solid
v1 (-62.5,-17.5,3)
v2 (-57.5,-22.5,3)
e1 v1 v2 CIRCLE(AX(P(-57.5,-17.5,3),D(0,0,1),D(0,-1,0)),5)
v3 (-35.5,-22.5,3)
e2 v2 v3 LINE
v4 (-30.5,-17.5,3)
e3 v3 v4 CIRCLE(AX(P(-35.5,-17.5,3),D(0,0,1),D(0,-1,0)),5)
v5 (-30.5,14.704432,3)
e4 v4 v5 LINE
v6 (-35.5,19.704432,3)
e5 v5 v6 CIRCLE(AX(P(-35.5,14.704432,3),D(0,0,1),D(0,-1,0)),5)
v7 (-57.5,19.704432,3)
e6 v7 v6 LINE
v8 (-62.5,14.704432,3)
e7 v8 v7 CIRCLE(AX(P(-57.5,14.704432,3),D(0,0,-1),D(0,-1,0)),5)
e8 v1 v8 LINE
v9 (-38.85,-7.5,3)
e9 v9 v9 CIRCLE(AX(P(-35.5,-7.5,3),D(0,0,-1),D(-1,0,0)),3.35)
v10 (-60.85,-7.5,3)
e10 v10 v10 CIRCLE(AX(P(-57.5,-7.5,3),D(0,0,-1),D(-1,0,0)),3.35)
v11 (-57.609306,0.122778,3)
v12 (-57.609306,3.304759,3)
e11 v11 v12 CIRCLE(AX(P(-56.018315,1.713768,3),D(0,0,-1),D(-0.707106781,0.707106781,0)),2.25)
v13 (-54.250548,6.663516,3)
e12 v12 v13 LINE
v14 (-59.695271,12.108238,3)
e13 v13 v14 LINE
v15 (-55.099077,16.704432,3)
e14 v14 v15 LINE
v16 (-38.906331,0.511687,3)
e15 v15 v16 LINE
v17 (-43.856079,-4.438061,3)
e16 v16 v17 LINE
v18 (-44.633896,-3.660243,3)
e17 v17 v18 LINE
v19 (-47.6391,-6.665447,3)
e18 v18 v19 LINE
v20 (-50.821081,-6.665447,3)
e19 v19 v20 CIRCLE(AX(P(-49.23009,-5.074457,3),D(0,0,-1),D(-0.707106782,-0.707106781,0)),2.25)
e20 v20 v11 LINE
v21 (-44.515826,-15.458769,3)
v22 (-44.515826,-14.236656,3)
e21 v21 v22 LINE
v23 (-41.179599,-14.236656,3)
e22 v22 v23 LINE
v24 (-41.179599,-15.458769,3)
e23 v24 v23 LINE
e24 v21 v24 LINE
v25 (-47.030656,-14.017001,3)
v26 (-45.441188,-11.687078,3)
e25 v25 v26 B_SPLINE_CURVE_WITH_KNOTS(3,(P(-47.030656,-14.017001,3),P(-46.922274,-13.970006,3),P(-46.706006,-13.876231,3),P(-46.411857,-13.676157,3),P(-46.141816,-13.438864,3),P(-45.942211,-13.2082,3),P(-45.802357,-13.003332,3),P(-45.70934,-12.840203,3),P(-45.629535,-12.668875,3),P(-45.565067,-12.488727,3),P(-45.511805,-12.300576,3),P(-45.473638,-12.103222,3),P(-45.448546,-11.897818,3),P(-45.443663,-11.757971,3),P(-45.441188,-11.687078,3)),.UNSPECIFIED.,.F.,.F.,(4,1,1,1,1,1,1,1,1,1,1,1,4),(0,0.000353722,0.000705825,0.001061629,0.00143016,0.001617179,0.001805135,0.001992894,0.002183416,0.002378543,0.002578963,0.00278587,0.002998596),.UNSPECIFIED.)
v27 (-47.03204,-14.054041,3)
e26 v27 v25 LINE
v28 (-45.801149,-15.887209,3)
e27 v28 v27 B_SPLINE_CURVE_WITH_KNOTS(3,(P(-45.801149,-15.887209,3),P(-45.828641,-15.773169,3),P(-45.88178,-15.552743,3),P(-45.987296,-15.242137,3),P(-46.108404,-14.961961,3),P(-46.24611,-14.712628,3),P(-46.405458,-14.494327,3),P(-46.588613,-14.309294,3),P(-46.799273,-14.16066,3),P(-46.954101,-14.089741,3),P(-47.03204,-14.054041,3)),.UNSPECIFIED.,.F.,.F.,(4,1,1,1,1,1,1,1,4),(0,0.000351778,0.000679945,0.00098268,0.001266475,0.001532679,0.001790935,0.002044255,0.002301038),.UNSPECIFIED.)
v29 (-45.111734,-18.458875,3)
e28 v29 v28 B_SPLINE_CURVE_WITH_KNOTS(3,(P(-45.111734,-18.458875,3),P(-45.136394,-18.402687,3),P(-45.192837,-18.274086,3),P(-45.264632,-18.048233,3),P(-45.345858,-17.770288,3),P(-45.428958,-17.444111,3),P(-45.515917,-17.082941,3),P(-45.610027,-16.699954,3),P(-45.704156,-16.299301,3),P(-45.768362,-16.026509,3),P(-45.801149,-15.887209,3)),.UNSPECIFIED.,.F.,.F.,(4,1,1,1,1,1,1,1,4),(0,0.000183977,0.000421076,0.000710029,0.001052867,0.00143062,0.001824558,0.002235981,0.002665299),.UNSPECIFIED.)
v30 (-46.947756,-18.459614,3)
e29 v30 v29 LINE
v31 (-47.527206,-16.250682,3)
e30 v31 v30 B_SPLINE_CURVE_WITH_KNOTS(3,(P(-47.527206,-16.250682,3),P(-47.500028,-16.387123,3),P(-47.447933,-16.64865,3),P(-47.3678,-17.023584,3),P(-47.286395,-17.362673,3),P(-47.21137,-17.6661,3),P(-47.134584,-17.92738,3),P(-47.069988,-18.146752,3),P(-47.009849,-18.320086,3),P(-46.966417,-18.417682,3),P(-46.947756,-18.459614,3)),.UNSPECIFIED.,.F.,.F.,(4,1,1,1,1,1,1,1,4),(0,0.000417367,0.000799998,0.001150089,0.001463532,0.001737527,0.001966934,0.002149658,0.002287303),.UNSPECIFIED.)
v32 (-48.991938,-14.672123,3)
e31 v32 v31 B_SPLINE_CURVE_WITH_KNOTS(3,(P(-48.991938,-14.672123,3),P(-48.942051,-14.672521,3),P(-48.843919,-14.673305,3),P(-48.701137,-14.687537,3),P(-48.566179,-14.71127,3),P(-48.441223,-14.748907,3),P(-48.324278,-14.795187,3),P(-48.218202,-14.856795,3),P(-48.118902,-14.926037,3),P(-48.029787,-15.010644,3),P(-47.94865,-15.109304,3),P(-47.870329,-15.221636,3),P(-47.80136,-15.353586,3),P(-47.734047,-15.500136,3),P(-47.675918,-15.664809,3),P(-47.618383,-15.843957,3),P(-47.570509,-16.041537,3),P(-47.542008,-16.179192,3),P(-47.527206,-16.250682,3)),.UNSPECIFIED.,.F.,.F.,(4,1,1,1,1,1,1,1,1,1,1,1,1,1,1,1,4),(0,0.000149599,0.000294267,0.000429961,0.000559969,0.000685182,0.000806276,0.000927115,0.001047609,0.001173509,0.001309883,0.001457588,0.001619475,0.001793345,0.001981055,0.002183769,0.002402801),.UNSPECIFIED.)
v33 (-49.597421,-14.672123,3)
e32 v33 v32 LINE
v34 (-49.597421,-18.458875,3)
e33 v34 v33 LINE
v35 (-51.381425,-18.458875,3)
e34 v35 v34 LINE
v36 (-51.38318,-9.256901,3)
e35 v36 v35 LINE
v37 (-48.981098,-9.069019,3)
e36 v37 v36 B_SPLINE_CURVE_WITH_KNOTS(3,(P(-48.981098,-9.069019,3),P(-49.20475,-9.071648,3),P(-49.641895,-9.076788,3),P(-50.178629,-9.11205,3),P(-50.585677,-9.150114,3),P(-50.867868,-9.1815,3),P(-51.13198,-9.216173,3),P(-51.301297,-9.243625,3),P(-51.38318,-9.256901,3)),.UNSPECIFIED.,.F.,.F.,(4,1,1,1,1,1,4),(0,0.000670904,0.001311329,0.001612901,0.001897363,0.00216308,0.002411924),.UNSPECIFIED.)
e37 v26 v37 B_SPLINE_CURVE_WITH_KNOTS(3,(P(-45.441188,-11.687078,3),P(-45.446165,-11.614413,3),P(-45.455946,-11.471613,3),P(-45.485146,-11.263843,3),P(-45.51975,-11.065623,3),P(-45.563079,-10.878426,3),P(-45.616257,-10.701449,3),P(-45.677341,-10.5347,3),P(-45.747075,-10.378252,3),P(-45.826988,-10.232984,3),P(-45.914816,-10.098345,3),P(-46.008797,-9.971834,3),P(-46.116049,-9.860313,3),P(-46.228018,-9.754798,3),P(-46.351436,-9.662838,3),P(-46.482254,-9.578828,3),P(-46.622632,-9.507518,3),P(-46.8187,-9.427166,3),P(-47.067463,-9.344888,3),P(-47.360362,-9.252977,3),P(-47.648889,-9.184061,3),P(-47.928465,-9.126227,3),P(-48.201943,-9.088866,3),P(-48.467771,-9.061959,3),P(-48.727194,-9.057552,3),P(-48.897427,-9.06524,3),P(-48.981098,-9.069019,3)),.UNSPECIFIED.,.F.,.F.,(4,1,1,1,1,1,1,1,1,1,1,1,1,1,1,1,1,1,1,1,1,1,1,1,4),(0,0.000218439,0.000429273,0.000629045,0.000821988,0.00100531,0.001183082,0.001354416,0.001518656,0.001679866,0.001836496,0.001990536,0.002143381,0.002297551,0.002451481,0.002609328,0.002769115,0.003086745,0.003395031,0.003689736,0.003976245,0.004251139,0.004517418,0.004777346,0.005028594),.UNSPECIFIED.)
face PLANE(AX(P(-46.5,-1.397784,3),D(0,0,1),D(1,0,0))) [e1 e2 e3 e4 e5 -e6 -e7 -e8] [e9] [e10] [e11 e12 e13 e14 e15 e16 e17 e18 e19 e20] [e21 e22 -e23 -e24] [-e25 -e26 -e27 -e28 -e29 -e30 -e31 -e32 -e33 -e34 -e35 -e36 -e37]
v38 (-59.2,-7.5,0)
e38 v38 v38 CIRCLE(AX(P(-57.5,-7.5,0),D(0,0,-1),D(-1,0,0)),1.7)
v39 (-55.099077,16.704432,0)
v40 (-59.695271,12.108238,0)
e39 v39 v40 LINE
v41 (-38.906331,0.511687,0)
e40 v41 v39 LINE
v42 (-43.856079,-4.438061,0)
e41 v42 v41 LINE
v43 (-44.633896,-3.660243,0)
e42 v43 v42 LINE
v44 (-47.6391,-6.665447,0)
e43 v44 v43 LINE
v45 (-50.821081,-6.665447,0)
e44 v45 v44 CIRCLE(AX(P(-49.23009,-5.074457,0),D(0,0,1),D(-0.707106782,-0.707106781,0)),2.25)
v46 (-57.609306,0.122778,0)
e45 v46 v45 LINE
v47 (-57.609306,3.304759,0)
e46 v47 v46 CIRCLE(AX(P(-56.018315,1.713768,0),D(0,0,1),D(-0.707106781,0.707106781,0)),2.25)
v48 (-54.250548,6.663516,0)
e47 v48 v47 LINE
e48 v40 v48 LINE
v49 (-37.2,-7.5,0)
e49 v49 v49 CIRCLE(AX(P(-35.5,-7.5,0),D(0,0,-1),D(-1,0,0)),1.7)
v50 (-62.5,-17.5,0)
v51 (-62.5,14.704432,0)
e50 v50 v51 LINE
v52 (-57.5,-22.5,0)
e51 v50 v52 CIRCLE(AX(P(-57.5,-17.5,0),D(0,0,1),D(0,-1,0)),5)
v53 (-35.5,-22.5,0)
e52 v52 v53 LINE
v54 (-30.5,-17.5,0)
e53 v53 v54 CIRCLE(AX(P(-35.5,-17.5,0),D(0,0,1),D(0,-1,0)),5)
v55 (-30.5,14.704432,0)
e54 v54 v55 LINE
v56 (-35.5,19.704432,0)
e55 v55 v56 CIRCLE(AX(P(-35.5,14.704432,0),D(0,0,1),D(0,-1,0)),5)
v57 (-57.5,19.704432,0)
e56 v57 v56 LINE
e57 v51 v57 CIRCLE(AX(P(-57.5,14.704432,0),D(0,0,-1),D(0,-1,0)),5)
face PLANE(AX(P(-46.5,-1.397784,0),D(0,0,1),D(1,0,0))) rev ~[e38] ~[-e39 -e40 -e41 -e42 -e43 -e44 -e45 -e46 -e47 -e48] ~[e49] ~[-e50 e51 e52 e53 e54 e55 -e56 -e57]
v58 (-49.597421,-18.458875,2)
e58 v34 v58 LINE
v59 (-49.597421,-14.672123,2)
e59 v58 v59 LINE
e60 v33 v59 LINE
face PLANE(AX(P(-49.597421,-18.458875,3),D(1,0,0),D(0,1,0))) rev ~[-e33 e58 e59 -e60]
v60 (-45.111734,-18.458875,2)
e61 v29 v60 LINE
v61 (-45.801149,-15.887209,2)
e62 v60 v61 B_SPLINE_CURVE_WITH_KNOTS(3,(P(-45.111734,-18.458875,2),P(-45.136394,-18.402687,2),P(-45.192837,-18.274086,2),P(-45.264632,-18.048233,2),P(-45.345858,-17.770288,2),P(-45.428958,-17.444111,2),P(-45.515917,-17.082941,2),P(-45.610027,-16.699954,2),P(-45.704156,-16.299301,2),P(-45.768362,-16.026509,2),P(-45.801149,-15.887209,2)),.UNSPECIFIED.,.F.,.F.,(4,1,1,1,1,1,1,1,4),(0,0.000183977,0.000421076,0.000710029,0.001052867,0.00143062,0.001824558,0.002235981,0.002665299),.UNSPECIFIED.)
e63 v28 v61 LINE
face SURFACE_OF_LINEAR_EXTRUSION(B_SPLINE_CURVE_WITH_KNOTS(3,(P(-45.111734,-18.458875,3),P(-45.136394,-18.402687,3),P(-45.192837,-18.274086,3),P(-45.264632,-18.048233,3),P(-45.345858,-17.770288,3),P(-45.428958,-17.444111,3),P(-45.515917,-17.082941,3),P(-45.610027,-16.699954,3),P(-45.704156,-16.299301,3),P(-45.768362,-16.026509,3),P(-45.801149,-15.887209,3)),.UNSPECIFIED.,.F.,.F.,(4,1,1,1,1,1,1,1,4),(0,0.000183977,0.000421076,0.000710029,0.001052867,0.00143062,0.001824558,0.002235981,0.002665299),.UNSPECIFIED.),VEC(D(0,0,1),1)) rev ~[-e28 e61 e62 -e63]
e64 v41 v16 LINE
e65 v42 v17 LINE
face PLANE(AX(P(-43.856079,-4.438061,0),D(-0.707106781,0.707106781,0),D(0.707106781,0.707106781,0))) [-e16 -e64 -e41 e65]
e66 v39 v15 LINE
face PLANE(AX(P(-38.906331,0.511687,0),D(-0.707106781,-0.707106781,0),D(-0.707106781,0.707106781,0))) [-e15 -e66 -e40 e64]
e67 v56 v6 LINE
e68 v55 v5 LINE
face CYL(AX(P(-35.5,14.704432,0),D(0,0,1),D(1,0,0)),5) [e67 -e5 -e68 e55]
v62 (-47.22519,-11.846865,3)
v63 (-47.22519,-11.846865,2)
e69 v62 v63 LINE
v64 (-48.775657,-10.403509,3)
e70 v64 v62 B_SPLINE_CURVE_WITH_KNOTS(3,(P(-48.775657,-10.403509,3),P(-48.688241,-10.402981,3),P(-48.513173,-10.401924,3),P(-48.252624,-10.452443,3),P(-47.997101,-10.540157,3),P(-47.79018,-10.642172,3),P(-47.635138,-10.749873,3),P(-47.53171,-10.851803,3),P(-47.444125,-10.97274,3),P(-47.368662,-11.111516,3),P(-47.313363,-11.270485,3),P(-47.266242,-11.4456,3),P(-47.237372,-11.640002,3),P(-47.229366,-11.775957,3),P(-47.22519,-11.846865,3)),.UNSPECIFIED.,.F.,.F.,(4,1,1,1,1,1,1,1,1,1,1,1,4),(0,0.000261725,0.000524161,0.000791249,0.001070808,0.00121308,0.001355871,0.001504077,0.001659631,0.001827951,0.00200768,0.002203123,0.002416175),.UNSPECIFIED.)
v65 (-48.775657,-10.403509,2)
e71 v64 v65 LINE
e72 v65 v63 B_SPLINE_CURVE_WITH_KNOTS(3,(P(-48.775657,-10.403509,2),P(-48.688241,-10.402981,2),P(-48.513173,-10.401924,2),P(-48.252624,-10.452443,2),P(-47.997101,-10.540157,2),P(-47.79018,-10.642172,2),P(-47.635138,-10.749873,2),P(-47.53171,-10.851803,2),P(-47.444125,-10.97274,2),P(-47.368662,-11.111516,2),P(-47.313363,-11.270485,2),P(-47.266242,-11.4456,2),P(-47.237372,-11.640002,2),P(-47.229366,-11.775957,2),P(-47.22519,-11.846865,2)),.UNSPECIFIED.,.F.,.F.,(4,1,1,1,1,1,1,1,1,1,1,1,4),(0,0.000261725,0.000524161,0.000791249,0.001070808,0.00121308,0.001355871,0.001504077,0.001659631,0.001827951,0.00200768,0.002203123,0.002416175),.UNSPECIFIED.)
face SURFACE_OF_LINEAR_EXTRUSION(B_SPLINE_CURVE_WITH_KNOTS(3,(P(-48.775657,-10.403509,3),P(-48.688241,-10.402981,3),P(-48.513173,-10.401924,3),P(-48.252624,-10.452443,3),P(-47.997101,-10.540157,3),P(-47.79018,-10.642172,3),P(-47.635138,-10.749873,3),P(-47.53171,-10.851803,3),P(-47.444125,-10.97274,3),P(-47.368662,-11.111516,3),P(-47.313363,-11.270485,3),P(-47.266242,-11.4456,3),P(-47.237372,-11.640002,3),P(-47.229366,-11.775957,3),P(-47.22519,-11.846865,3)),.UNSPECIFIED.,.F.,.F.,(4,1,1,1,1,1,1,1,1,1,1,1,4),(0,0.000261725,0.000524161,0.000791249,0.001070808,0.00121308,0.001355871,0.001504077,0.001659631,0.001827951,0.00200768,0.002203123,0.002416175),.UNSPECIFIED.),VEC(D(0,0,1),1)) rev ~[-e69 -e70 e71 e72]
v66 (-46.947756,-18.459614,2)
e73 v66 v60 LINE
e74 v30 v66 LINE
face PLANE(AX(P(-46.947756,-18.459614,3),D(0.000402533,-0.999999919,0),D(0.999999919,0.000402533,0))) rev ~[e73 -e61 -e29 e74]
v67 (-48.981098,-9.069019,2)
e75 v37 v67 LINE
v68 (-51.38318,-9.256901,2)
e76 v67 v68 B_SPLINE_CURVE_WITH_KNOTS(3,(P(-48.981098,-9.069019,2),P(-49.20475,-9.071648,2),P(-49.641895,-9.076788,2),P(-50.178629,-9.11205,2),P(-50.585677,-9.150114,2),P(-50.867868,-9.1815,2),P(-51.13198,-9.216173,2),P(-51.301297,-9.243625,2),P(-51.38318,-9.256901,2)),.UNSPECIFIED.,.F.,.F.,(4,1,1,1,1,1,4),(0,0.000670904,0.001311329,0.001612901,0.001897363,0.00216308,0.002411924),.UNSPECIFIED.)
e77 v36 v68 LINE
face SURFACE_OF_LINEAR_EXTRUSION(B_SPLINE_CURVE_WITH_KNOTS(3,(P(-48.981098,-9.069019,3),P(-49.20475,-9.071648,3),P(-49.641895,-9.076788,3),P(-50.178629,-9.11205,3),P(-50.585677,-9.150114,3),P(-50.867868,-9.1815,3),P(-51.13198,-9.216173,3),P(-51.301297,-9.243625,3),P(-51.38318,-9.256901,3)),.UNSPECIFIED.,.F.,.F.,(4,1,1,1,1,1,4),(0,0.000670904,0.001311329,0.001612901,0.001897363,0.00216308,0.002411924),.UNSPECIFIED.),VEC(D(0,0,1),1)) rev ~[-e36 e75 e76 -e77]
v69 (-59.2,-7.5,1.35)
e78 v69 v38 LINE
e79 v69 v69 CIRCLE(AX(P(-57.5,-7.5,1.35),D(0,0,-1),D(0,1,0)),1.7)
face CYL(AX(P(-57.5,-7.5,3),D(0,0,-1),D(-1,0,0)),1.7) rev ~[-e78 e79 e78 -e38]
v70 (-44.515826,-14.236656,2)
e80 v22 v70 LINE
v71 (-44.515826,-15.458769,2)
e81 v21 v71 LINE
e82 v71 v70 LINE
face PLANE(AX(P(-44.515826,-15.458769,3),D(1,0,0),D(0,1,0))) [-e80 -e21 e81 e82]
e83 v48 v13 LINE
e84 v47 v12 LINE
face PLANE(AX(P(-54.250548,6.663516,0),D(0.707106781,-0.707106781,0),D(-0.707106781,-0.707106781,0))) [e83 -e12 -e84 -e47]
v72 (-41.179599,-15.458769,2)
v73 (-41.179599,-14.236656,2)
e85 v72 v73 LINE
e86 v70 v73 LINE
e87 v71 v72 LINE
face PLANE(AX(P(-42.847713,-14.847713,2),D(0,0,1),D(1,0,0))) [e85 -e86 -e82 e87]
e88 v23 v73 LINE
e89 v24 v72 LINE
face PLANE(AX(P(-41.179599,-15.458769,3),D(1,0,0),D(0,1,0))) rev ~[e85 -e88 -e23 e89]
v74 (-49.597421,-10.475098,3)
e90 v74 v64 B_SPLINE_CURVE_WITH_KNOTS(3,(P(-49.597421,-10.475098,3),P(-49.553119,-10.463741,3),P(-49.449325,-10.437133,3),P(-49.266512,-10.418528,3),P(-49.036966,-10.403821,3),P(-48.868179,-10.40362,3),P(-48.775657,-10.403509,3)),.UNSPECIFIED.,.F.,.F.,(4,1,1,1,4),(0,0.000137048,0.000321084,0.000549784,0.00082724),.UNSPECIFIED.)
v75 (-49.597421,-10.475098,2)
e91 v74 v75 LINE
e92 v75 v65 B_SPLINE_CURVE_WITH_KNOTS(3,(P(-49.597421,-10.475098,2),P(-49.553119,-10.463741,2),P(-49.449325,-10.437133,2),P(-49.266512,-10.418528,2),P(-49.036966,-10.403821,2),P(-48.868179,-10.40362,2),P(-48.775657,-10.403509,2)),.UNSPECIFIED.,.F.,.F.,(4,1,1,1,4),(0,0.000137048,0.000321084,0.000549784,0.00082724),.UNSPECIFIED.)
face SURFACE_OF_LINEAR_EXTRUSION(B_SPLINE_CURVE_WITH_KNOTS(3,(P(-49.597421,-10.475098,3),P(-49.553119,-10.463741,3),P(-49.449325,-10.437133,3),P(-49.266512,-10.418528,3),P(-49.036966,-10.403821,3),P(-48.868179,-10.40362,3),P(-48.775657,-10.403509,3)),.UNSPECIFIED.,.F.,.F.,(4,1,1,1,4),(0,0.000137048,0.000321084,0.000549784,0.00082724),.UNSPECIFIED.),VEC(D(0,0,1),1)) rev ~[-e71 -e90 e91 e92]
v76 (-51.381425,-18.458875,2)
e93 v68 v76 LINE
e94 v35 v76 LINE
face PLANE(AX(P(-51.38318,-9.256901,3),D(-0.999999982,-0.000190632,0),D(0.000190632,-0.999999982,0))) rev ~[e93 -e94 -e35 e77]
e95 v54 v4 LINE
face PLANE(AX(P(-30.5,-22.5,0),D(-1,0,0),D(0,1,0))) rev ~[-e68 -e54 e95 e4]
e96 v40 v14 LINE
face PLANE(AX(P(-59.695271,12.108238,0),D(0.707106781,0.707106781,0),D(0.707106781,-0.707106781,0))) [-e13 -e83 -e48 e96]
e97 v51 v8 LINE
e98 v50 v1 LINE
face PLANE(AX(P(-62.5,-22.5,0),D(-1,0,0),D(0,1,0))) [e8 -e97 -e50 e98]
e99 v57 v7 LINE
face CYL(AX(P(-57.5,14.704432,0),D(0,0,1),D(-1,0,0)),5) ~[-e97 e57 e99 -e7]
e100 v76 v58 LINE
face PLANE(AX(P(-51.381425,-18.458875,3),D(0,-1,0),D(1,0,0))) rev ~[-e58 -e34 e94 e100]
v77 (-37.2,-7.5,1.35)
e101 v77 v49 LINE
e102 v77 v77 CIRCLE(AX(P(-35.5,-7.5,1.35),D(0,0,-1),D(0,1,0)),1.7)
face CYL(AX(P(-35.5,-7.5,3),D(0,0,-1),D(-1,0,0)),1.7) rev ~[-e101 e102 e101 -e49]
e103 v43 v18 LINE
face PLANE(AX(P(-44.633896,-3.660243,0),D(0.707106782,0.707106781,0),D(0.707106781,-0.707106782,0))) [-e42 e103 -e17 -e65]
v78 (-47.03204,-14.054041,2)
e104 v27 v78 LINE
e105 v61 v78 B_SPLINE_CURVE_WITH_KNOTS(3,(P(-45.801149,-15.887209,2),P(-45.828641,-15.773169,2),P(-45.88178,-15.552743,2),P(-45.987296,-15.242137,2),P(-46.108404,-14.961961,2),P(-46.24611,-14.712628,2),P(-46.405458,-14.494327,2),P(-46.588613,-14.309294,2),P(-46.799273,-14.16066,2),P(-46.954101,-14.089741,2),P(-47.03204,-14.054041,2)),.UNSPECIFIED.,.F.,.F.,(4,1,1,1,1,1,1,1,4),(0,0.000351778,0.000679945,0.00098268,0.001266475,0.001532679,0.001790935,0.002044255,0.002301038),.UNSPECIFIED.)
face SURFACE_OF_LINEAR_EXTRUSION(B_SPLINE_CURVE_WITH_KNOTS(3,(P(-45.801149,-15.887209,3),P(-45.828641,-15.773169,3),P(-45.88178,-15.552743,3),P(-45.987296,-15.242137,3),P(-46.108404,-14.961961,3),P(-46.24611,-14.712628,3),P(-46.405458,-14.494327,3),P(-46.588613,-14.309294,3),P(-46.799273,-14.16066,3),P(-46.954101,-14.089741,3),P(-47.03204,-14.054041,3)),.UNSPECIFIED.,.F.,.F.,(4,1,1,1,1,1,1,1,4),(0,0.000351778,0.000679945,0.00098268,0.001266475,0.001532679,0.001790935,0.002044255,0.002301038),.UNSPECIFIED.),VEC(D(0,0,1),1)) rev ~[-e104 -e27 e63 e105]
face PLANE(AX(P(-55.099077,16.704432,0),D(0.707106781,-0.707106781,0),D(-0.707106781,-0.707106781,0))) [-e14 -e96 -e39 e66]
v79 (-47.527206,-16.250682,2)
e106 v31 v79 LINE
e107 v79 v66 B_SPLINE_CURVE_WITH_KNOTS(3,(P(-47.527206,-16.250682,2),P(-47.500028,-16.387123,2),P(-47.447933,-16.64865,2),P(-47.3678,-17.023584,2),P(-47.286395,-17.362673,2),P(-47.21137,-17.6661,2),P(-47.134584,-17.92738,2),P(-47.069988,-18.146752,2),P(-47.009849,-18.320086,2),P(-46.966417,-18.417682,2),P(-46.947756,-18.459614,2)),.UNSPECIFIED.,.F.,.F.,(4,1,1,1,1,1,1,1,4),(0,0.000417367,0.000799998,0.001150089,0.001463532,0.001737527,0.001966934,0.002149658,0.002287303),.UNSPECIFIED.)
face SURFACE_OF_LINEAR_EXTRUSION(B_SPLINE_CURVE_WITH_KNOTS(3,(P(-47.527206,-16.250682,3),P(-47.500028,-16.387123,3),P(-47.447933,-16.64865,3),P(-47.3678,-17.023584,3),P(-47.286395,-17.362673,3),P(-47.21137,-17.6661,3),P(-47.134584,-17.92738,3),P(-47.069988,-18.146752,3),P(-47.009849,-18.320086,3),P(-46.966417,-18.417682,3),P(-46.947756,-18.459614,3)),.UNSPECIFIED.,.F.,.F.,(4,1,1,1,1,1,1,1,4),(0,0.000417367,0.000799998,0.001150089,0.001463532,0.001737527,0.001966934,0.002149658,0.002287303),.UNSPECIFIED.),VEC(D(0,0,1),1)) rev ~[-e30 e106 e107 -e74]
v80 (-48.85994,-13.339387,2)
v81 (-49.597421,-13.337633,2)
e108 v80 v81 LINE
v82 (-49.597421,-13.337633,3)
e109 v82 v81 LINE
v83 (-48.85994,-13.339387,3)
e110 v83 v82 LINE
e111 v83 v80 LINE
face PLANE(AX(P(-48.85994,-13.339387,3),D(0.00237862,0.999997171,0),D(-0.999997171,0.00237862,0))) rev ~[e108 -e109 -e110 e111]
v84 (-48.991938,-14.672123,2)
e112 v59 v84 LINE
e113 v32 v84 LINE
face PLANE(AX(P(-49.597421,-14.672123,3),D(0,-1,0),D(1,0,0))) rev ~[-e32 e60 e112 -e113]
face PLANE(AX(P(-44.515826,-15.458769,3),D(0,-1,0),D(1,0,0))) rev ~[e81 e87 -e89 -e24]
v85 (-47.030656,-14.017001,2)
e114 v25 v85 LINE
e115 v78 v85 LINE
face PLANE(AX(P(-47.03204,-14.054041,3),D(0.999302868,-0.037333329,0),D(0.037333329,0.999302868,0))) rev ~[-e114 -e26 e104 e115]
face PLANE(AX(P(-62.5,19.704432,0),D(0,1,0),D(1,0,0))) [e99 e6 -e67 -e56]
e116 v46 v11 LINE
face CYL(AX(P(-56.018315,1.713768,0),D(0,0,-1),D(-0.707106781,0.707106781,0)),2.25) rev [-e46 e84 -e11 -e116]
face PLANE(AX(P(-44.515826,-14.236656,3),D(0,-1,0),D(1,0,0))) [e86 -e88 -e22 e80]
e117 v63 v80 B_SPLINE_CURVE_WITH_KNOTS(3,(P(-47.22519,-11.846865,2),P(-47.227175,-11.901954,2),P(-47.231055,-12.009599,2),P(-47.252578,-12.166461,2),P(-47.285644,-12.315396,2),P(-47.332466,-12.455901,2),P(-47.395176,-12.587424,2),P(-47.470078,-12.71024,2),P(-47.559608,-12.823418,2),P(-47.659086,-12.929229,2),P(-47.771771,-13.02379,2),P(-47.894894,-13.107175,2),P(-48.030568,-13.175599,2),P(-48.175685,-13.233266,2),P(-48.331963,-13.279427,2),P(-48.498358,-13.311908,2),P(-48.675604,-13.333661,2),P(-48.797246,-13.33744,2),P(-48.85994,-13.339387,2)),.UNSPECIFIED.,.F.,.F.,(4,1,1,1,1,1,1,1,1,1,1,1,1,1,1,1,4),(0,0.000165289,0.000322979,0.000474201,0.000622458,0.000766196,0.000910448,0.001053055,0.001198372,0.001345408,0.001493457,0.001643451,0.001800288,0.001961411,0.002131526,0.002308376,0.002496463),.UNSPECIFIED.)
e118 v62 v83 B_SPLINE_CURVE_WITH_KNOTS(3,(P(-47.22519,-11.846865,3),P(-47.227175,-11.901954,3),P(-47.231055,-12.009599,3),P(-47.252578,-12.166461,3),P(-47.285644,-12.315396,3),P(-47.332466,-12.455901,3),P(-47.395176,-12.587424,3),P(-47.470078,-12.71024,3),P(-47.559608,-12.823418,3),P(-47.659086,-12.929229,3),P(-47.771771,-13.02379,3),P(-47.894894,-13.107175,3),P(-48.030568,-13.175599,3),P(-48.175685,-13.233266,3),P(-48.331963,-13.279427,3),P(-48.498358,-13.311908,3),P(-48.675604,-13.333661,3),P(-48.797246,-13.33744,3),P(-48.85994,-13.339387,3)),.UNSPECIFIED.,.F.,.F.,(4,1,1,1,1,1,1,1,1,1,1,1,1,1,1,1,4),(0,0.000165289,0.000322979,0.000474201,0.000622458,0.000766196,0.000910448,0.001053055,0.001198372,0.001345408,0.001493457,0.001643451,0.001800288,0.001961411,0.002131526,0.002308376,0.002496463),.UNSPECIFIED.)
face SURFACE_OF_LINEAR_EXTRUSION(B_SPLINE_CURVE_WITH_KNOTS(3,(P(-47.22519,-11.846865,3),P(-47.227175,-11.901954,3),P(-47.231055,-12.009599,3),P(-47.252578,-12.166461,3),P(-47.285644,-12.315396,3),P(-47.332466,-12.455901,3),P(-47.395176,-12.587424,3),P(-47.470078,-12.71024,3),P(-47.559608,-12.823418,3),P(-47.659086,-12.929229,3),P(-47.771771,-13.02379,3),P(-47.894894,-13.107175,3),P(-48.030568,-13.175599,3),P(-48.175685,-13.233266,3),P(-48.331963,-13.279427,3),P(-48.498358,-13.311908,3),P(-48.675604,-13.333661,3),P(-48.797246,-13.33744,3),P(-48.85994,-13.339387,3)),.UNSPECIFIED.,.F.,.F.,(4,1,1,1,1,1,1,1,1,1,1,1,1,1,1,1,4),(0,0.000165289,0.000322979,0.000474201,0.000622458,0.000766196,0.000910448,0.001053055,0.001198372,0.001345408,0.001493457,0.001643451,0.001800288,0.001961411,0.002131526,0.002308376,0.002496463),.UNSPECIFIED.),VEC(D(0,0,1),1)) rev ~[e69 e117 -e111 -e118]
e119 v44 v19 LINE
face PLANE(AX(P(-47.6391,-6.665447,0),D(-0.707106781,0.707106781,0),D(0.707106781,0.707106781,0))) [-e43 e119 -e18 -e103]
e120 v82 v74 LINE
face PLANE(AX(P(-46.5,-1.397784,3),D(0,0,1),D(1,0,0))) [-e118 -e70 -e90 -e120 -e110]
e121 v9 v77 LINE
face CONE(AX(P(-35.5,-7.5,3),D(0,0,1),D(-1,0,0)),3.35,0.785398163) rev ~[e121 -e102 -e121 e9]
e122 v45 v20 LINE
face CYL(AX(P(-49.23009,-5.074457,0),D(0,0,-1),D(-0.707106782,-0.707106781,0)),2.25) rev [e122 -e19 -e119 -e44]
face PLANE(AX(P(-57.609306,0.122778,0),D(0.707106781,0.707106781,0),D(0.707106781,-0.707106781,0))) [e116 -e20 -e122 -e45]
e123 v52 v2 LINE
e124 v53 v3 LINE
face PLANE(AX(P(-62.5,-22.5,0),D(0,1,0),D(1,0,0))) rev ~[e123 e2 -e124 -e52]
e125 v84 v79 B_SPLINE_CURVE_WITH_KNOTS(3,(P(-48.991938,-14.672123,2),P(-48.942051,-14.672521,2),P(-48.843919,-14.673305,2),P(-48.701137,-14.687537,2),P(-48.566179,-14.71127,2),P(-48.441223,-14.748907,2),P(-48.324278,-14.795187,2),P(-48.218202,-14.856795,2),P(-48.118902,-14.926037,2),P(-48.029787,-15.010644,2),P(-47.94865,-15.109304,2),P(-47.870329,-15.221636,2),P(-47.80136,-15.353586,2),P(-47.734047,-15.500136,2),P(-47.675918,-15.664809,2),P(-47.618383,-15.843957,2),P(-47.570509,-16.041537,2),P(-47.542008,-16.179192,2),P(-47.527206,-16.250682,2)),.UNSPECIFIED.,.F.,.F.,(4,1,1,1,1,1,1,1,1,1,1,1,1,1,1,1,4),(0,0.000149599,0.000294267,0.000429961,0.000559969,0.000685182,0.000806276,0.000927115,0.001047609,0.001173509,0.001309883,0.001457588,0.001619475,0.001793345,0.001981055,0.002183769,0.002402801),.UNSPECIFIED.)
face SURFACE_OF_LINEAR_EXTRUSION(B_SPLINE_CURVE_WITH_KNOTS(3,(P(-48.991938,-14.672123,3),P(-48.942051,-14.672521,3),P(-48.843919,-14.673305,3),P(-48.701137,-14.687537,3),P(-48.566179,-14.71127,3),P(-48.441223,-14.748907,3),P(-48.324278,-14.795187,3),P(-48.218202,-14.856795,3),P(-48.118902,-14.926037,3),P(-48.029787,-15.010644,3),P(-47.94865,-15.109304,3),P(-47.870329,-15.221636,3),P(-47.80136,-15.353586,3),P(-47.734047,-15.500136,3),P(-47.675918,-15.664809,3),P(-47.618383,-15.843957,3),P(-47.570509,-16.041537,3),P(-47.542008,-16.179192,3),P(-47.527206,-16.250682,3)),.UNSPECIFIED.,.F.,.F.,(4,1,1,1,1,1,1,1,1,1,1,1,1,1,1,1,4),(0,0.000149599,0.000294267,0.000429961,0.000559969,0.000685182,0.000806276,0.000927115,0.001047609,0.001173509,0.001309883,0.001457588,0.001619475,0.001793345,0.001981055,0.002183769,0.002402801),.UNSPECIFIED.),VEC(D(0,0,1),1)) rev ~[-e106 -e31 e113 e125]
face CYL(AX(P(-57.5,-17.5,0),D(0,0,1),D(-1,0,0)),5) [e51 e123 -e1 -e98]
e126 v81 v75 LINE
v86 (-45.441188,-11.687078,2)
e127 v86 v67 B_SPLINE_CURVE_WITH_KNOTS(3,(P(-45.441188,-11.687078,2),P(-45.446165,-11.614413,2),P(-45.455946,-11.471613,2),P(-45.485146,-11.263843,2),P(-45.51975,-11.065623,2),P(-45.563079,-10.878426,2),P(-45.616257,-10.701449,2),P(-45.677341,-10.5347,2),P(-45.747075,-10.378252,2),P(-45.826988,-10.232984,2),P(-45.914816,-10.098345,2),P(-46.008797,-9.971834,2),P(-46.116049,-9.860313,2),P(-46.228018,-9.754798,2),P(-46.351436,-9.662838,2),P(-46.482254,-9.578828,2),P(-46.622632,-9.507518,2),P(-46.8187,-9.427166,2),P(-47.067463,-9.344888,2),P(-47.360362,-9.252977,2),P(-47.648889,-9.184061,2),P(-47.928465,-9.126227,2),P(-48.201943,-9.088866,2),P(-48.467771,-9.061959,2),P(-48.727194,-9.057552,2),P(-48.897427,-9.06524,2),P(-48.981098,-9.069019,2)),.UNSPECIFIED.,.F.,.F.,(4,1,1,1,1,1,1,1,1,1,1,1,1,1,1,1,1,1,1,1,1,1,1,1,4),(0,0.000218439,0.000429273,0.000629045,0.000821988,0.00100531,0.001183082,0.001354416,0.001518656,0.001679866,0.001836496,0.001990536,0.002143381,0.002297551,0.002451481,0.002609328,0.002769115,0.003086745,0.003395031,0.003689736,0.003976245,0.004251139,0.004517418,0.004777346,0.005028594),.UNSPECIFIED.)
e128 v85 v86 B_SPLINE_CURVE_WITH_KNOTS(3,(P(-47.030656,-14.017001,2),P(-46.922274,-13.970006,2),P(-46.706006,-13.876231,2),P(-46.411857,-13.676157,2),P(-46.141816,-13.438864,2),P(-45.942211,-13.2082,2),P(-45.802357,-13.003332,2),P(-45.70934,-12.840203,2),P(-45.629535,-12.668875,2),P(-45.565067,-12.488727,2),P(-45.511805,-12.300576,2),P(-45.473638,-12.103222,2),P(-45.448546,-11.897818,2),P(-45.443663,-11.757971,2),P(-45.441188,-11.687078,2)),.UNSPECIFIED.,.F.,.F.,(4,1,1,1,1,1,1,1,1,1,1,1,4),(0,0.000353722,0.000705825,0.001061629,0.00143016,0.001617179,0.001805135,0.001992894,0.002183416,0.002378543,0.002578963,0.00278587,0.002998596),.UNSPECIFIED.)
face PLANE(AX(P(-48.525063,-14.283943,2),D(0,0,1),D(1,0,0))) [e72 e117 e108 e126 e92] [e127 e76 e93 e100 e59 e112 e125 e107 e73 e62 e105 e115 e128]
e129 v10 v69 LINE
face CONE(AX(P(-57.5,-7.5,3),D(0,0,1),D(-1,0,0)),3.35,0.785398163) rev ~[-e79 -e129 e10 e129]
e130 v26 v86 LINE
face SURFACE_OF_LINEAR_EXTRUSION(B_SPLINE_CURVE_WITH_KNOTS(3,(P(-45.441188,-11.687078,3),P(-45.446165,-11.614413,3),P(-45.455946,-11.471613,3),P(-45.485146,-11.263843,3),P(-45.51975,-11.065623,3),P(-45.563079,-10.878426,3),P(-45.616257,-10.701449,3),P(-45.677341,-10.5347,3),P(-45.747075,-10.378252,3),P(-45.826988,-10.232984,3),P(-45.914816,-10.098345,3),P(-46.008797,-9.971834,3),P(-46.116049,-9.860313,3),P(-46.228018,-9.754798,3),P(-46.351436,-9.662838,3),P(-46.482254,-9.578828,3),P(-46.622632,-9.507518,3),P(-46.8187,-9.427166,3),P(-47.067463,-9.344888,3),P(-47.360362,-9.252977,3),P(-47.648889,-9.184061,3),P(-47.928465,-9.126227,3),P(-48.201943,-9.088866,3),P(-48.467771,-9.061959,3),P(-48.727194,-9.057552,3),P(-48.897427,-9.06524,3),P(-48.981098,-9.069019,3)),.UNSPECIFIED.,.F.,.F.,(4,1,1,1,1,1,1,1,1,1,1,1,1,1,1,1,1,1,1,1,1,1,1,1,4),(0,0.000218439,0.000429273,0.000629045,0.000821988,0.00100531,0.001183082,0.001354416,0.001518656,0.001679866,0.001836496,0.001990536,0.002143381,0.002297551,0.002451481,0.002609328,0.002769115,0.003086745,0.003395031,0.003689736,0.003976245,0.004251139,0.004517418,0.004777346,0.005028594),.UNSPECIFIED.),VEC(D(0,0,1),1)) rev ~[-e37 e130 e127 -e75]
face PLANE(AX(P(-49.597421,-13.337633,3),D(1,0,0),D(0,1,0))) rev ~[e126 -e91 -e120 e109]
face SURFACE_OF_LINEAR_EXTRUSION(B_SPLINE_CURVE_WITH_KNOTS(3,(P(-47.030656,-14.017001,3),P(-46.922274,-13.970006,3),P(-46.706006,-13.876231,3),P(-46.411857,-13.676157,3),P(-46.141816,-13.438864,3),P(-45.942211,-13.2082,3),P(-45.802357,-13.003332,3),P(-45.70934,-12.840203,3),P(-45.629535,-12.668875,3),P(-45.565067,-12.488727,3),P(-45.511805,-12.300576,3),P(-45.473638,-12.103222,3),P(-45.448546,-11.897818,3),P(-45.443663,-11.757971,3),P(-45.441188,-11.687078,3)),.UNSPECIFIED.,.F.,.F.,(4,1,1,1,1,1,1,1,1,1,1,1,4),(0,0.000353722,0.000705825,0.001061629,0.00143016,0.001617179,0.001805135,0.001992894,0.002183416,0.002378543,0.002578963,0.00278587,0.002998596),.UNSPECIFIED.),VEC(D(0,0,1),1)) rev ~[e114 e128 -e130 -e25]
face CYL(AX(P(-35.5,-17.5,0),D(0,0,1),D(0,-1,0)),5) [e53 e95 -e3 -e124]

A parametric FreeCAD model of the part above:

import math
import FreeCAD as App
import Part
import Sketcher

V = App.Vector


def edges_at(feature, points):
    """Names of the edges that pass closest to the given points."""
    edges = feature.Shape.Edges
    near = lambda p: min(range(len(edges)), key=lambda i: edges[i].distToShape(Part.Vertex(*p))[0])
    return sorted({f"Edge{near(p) + 1}" for p in points})

doc = App.newDocument("Part")
body = doc.addObject("PartDesign::Body", "Body")

sketch1 = body.newObject("Sketcher::SketchObject", "Sketch")
sketch1.AttachmentSupport = (doc.getObject("XY_Plane"), [""])
sketch1.MapMode = "FlatFace"
sketch1.addGeometry(Part.LineSegment(V(-62, 20, 0), V(-62, -23, 0)), False)
sketch1.addGeometry(Part.LineSegment(V(-62, -23, 0), V(-30, -23, 0)), False)
sketch1.addGeometry(Part.LineSegment(V(-30, -23, 0), V(-30, 20, 0)), False)
sketch1.addGeometry(Part.LineSegment(V(-30, 20, 0), V(-62, 20, 0)), False)
sketch1.addConstraint(Sketcher.Constraint("Coincident", 0, 2, 1, 1))
sketch1.addConstraint(Sketcher.Constraint("Coincident", 1, 2, 2, 1))
sketch1.addConstraint(Sketcher.Constraint("Coincident", 2, 2, 3, 1))
sketch1.addConstraint(Sketcher.Constraint("Coincident", 3, 2, 0, 1))
sketch1.addConstraint(Sketcher.Constraint("Vertical", 0))
sketch1.addConstraint(Sketcher.Constraint("Horizontal", 1))
sketch1.addConstraint(Sketcher.Constraint("Vertical", 2))
sketch1.addConstraint(Sketcher.Constraint("Horizontal", 3))
sketch1.addConstraint(Sketcher.Constraint("DistanceX", 1, 1, 1, 2, 32.0))
sketch1.addConstraint(Sketcher.Constraint("DistanceX", 0, 2, -1, 1, 62.5))
sketch1.addConstraint(Sketcher.Constraint("DistanceY", 0, 2, -1, 1, 22.5))
sketch1.addConstraint(Sketcher.Constraint("DistanceY", 0, 2, 0, 1, 42.204432))
pad1 = body.newObject("PartDesign::Pad", "Pad")
pad1.Profile = sketch1
pad1.Length = 3
doc.recompute()

fillet = body.newObject("PartDesign::Fillet", "Fillet")
fillet.Base = (pad1, edges_at(pad1, [
    (-62.5, 19.704, 1.5),
    (-30.5, 19.704, 1.5),
    (-30.5, -22.5, 1.5),
    (-62.5, -22.5, 1.5),
]))
fillet.Radius = 5

sketch2 = body.newObject("Sketcher::SketchObject", "Sketch001")
sketch2.AttachmentSupport = (doc.getObject("XY_Plane"), [""])
sketch2.MapMode = "FlatFace"
sketch2.AttachmentOffset = App.Placement(V(0, 0, 3), App.Rotation())
sketch2.addGeometry(Part.LineSegment(V(-51.381425, -18.458875, 0), V(-49.597421, -18.458875, 0)), False)
sketch2.addGeometry(Part.LineSegment(V(-49.597421, -18.458875, 0), V(-49.597421, -14.672123, 0)), False)
sketch2.addGeometry(Part.LineSegment(V(-49.597421, -14.672123, 0), V(-48.991938, -14.672123, 0)), False)
sketch2.addGeometry(Part.BSplineCurve([V(-48.991938, -14.672123, 0), V(-48.942051, -14.672521, 0), V(-48.843919, -14.673305, 0), V(-48.701137, -14.687537, 0), V(-48.566179, -14.71127, 0), V(-48.441223, -14.748907, 0), V(-48.324278, -14.795187, 0), V(-48.218202, -14.856795, 0), V(-48.118902, -14.926037, 0), V(-48.029787, -15.010644, 0), V(-47.94865, -15.109304, 0), V(-47.870329, -15.221636, 0), V(-47.80136, -15.353586, 0), V(-47.734047, -15.500136, 0), V(-47.675918, -15.664809, 0), V(-47.618383, -15.843957, 0), V(-47.570509, -16.041537, 0), V(-47.542008, -16.179192, 0), V(-47.527206, -16.250682, 0)], [4, 1, 1, 1, 1, 1, 1, 1, 1, 1, 1, 1, 1, 1, 1, 1, 4], [0, 0.000149599, 0.000294267, 0.000429961, 0.000559969, 0.000685182, 0.000806276, 0.000927115, 0.001047609, 0.001173509, 0.001309883, 0.001457588, 0.001619475, 0.001793345, 0.001981055, 0.002183769, 0.002402801], False, 3, [1, 1, 1, 1, 1, 1, 1, 1, 1, 1, 1, 1, 1, 1, 1, 1, 1, 1, 1], False), False)
sketch2.addGeometry(Part.BSplineCurve([V(-47.527206, -16.250682, 0), V(-47.500028, -16.387123, 0), V(-47.447933, -16.64865, 0), V(-47.3678, -17.023584, 0), V(-47.286395, -17.362673, 0), V(-47.21137, -17.6661, 0), V(-47.134584, -17.92738, 0), V(-47.069988, -18.146752, 0), V(-47.009849, -18.320086, 0), V(-46.966417, -18.417682, 0), V(-46.947756, -18.459614, 0)], [4, 1, 1, 1, 1, 1, 1, 1, 4], [0, 0.000417367, 0.000799998, 0.001150089, 0.001463532, 0.001737527, 0.001966934, 0.002149658, 0.002287303], False, 3, [1, 1, 1, 1, 1, 1, 1, 1, 1, 1, 1], False), False)
sketch2.addGeometry(Part.LineSegment(V(-46.947756, -18.459614, 0), V(-45.111734, -18.458875, 0)), False)
sketch2.addGeometry(Part.BSplineCurve([V(-45.111734, -18.458875, 0), V(-45.136394, -18.402687, 0), V(-45.192837, -18.274086, 0), V(-45.264632, -18.048233, 0), V(-45.345858, -17.770288, 0), V(-45.428958, -17.444111, 0), V(-45.515917, -17.082941, 0), V(-45.610027, -16.699954, 0), V(-45.704156, -16.299301, 0), V(-45.768362, -16.026509, 0), V(-45.801149, -15.887209, 0)], [4, 1, 1, 1, 1, 1, 1, 1, 4], [0, 0.000183977, 0.000421076, 0.000710029, 0.001052867, 0.00143062, 0.001824558, 0.002235981, 0.002665299], False, 3, [1, 1, 1, 1, 1, 1, 1, 1, 1, 1, 1], False), False)
sketch2.addGeometry(Part.BSplineCurve([V(-45.801149, -15.887209, 0), V(-45.828641, -15.773169, 0), V(-45.88178, -15.552743, 0), V(-45.987296, -15.242137, 0), V(-46.108404, -14.961961, 0), V(-46.24611, -14.712628, 0), V(-46.405458, -14.494327, 0), V(-46.588613, -14.309294, 0), V(-46.799273, -14.16066, 0), V(-46.954101, -14.089741, 0), V(-47.03204, -14.054041, 0)], [4, 1, 1, 1, 1, 1, 1, 1, 4], [0, 0.000351778, 0.000679945, 0.00098268, 0.001266475, 0.001532679, 0.001790935, 0.002044255, 0.002301038], False, 3, [1, 1, 1, 1, 1, 1, 1, 1, 1, 1, 1], False), False)
sketch2.addGeometry(Part.LineSegment(V(-47.03204, -14.054041, 0), V(-47.030656, -14.017001, 0)), False)
sketch2.addGeometry(Part.BSplineCurve([V(-47.030656, -14.017001, 0), V(-46.922274, -13.970006, 0), V(-46.706006, -13.876231, 0), V(-46.411857, -13.676157, 0), V(-46.141816, -13.438864, 0), V(-45.942211, -13.2082, 0), V(-45.802357, -13.003332, 0), V(-45.70934, -12.840203, 0), V(-45.629535, -12.668875, 0), V(-45.565067, -12.488727, 0), V(-45.511805, -12.300576, 0), V(-45.473638, -12.103222, 0), V(-45.448546, -11.897818, 0), V(-45.443663, -11.757971, 0), V(-45.441188, -11.687078, 0)], [4, 1, 1, 1, 1, 1, 1, 1, 1, 1, 1, 1, 4], [0, 0.000353722, 0.000705825, 0.001061629, 0.00143016, 0.001617179, 0.001805135, 0.001992894, 0.002183416, 0.002378543, 0.002578963, 0.00278587, 0.002998596], False, 3, [1, 1, 1, 1, 1, 1, 1, 1, 1, 1, 1, 1, 1, 1, 1], False), False)
sketch2.addGeometry(Part.BSplineCurve([V(-45.441188, -11.687078, 0), V(-45.446165, -11.614413, 0), V(-45.455946, -11.471613, 0), V(-45.485146, -11.263843, 0), V(-45.51975, -11.065623, 0), V(-45.563079, -10.878426, 0), V(-45.616257, -10.701449, 0), V(-45.677341, -10.5347, 0), V(-45.747075, -10.378252, 0), V(-45.826988, -10.232984, 0), V(-45.914816, -10.098345, 0), V(-46.008797, -9.971834, 0), V(-46.116049, -9.860313, 0), V(-46.228018, -9.754798, 0), V(-46.351436, -9.662838, 0), V(-46.482254, -9.578828, 0), V(-46.622632, -9.507518, 0), V(-46.8187, -9.427166, 0), V(-47.067463, -9.344888, 0), V(-47.360362, -9.252977, 0), V(-47.648889, -9.184061, 0), V(-47.928465, -9.126227, 0), V(-48.201943, -9.088866, 0), V(-48.467771, -9.061959, 0), V(-48.727194, -9.057552, 0), V(-48.897427, -9.06524, 0), V(-48.981098, -9.069019, 0)], [4, 1, 1, 1, 1, 1, 1, 1, 1, 1, 1, 1, 1, 1, 1, 1, 1, 1, 1, 1, 1, 1, 1, 1, 4], [0, 0.000218439, 0.000429273, 0.000629045, 0.000821988, 0.00100531, 0.001183082, 0.001354416, 0.001518656, 0.001679866, 0.001836496, 0.001990536, 0.002143381, 0.002297551, 0.002451481, 0.002609328, 0.002769115, 0.003086745, 0.003395031, 0.003689736, 0.003976245, 0.004251139, 0.004517418, 0.004777346, 0.005028594], False, 3, [1, 1, 1, 1, 1, 1, 1, 1, 1, 1, 1, 1, 1, 1, 1, 1, 1, 1, 1, 1, 1, 1, 1, 1, 1, 1, 1], False), False)
sketch2.addGeometry(Part.BSplineCurve([V(-48.981098, -9.069019, 0), V(-49.20475, -9.071648, 0), V(-49.641895, -9.076788, 0), V(-50.178629, -9.11205, 0), V(-50.585677, -9.150114, 0), V(-50.867868, -9.1815, 0), V(-51.13198, -9.216173, 0), V(-51.301297, -9.243625, 0), V(-51.38318, -9.256901, 0)], [4, 1, 1, 1, 1, 1, 4], [0, 0.000670904, 0.001311329, 0.001612901, 0.001897363, 0.00216308, 0.002411924], False, 3, [1, 1, 1, 1, 1, 1, 1, 1, 1], False), False)
sketch2.addGeometry(Part.LineSegment(V(-51.38318, -9.256901, 0), V(-51.381425, -18.458875, 0)), False)
sketch2.addGeometry(Part.LineSegment(V(-49.597421, -13.337633, 0), V(-49.597421, -10.475098, 0)), False)
sketch2.addGeometry(Part.BSplineCurve([V(-49.597421, -10.475098, 0), V(-49.553119, -10.463741, 0), V(-49.449325, -10.437133, 0), V(-49.266512, -10.418528, 0), V(-49.036966, -10.403821, 0), V(-48.868179, -10.40362, 0), V(-48.775657, -10.403509, 0)], [4, 1, 1, 1, 4], [0, 0.000137048, 0.000321084, 0.000549784, 0.00082724], False, 3, [1, 1, 1, 1, 1, 1, 1], False), False)
sketch2.addGeometry(Part.BSplineCurve([V(-48.775657, -10.403509, 0), V(-48.688241, -10.402981, 0), V(-48.513173, -10.401924, 0), V(-48.252624, -10.452443, 0), V(-47.997101, -10.540157, 0), V(-47.79018, -10.642172, 0), V(-47.635138, -10.749873, 0), V(-47.53171, -10.851803, 0), V(-47.444125, -10.97274, 0), V(-47.368662, -11.111516, 0), V(-47.313363, -11.270485, 0), V(-47.266242, -11.4456, 0), V(-47.237372, -11.640002, 0), V(-47.229366, -11.775957, 0), V(-47.22519, -11.846865, 0)], [4, 1, 1, 1, 1, 1, 1, 1, 1, 1, 1, 1, 4], [0, 0.000261725, 0.000524161, 0.000791249, 0.001070808, 0.00121308, 0.001355871, 0.001504077, 0.001659631, 0.001827951, 0.00200768, 0.002203123, 0.002416175], False, 3, [1, 1, 1, 1, 1, 1, 1, 1, 1, 1, 1, 1, 1, 1, 1], False), False)
sketch2.addGeometry(Part.BSplineCurve([V(-47.22519, -11.846865, 0), V(-47.227175, -11.901954, 0), V(-47.231055, -12.009599, 0), V(-47.252578, -12.166461, 0), V(-47.285644, -12.315396, 0), V(-47.332466, -12.455901, 0), V(-47.395176, -12.587424, 0), V(-47.470078, -12.71024, 0), V(-47.559608, -12.823418, 0), V(-47.659086, -12.929229, 0), V(-47.771771, -13.02379, 0), V(-47.894894, -13.107175, 0), V(-48.030568, -13.175599, 0), V(-48.175685, -13.233266, 0), V(-48.331963, -13.279427, 0), V(-48.498358, -13.311908, 0), V(-48.675604, -13.333661, 0), V(-48.797246, -13.33744, 0), V(-48.85994, -13.339387, 0)], [4, 1, 1, 1, 1, 1, 1, 1, 1, 1, 1, 1, 1, 1, 1, 1, 4], [0, 0.000165289, 0.000322979, 0.000474201, 0.000622458, 0.000766196, 0.000910448, 0.001053055, 0.001198372, 0.001345408, 0.001493457, 0.001643451, 0.001800288, 0.001961411, 0.002131526, 0.002308376, 0.002496463], False, 3, [1, 1, 1, 1, 1, 1, 1, 1, 1, 1, 1, 1, 1, 1, 1, 1, 1, 1, 1], False), False)
sketch2.addGeometry(Part.LineSegment(V(-48.85994, -13.339387, 0), V(-49.597421, -13.337633, 0)), False)
sketch2.addGeometry(Part.LineSegment(V(-44.515826, -14.236656, 0), V(-44.515826, -15.458769, 0)), False)
sketch2.addGeometry(Part.LineSegment(V(-44.515826, -15.458769, 0), V(-41.179599, -15.458769, 0)), False)
sketch2.addGeometry(Part.LineSegment(V(-41.179599, -15.458769, 0), V(-41.179599, -14.236656, 0)), False)
sketch2.addGeometry(Part.LineSegment(V(-41.179599, -14.236656, 0), V(-44.515826, -14.236656, 0)), False)
sketch2.addConstraint(Sketcher.Constraint("Block", 3))
sketch2.addConstraint(Sketcher.Constraint("Block", 4))
sketch2.addConstraint(Sketcher.Constraint("Block", 6))
sketch2.addConstraint(Sketcher.Constraint("Block", 7))
sketch2.addConstraint(Sketcher.Constraint("Block", 9))
sketch2.addConstraint(Sketcher.Constraint("Block", 10))
sketch2.addConstraint(Sketcher.Constraint("Block", 11))
sketch2.addConstraint(Sketcher.Constraint("Block", 14))
sketch2.addConstraint(Sketcher.Constraint("Block", 15))
sketch2.addConstraint(Sketcher.Constraint("Block", 16))
sketch2.addConstraint(Sketcher.Constraint("Coincident", 0, 2, 1, 1))
sketch2.addConstraint(Sketcher.Constraint("Coincident", 1, 2, 2, 1))
sketch2.addConstraint(Sketcher.Constraint("Coincident", 2, 2, 3, 1))
sketch2.addConstraint(Sketcher.Constraint("Coincident", 4, 2, 5, 1))
sketch2.addConstraint(Sketcher.Constraint("Coincident", 5, 2, 6, 1))
sketch2.addConstraint(Sketcher.Constraint("Coincident", 7, 2, 8, 1))
sketch2.addConstraint(Sketcher.Constraint("Coincident", 8, 2, 9, 1))
sketch2.addConstraint(Sketcher.Constraint("Coincident", 11, 2, 12, 1))
sketch2.addConstraint(Sketcher.Constraint("Coincident", 12, 2, 0, 1))
sketch2.addConstraint(Sketcher.Constraint("Coincident", 13, 2, 14, 1))
sketch2.addConstraint(Sketcher.Constraint("Coincident", 16, 2, 17, 1))
sketch2.addConstraint(Sketcher.Constraint("Coincident", 17, 2, 13, 1))
sketch2.addConstraint(Sketcher.Constraint("Coincident", 18, 2, 19, 1))
sketch2.addConstraint(Sketcher.Constraint("Coincident", 19, 2, 20, 1))
sketch2.addConstraint(Sketcher.Constraint("Coincident", 20, 2, 21, 1))
sketch2.addConstraint(Sketcher.Constraint("Coincident", 21, 2, 18, 1))
sketch2.addConstraint(Sketcher.Constraint("Horizontal", 0))
sketch2.addConstraint(Sketcher.Constraint("Vertical", 1))
sketch2.addConstraint(Sketcher.Constraint("Horizontal", 2))
sketch2.addConstraint(Sketcher.Constraint("Vertical", 13))
sketch2.addConstraint(Sketcher.Constraint("Vertical", 18))
sketch2.addConstraint(Sketcher.Constraint("Horizontal", 19))
sketch2.addConstraint(Sketcher.Constraint("Vertical", 20))
sketch2.addConstraint(Sketcher.Constraint("Horizontal", 21))
sketch2.addConstraint(Sketcher.Constraint("Horizontal", 0, 2, 5, 2))
sketch2.addConstraint(Sketcher.Constraint("Vertical", 1, 2, 13, 2))
sketch2.addConstraint(Sketcher.Constraint("DistanceX", 19, 2, -1, 1, 41.179599))
sketch2.addConstraint(Sketcher.Constraint("DistanceX", 0, 1, 0, 2, 1.784004))
sketch2.addConstraint(Sketcher.Constraint("DistanceX", 19, 1, 19, 2, 3.336227))
sketch2.addConstraint(Sketcher.Constraint("DistanceY", 13, 1, 13, 2, 2.862534))
sketch2.addConstraint(Sketcher.Constraint("DistanceY", 18, 2, 18, 1, 1.222114))
sketch2.addConstraint(Sketcher.Constraint("DistanceY", 18, 2, -1, 1, 15.458769))
pocket1 = body.newObject("PartDesign::Pocket", "Pocket")
pocket1.Profile = sketch2
pocket1.Length = 1

sketch3 = body.newObject("Sketcher::SketchObject", "Sketch002")
sketch3.AttachmentSupport = (doc.getObject("XY_Plane"), [""])
sketch3.MapMode = "FlatFace"
sketch3.AttachmentOffset = App.Placement(V(0, 0, 3), App.Rotation())
sketch3.addGeometry(Part.Circle(V(-57.5, -7.5, 0), V(0, 0, 1), 1.7), False)
sketch3.addGeometry(Part.Circle(V(-35.5, -7.5, 0), V(0, 0, 1), 1.7), False)
sketch3.addConstraint(Sketcher.Constraint("Equal", 0, 1))
sketch3.addConstraint(Sketcher.Constraint("Horizontal", 0, 3, 1, 3))
sketch3.addConstraint(Sketcher.Constraint("Diameter", 0, 3.4))
sketch3.addConstraint(Sketcher.Constraint("DistanceX", 0, 3, 1, 3, 22.0))
sketch3.addConstraint(Sketcher.Constraint("DistanceX", 0, 3, -1, 1, 57.5))
sketch3.addConstraint(Sketcher.Constraint("DistanceY", 0, 3, -1, 1, 7.5))
doc.recompute()
hole = body.newObject("PartDesign::Hole", "Hole")
hole.Profile = sketch3
hole.ThreadType = "None"
hole.Diameter = 3.4
hole.DepthType = "Dimension"
hole.Depth = 20
hole.DrillPoint = "Angled"
hole.DrillPointAngle = 118
hole.HoleCutType = "Countersink"
hole.HoleCutDiameter = 6.7
hole.HoleCutCountersinkAngle = 90

sketch4 = body.newObject("Sketcher::SketchObject", "Sketch003")
sketch4.AttachmentSupport = (doc.getObject("XY_Plane"), [""])
sketch4.MapMode = "FlatFace"
sketch4.addGeometry(Part.LineSegment(V(-59.7, 12.1, 0), V(-55.1, 16.7, 0)), False)
sketch4.addGeometry(Part.LineSegment(V(-55.1, 16.7, 0), V(-38.9, 0.5, 0)), False)
sketch4.addGeometry(Part.LineSegment(V(-38.9, 0.5, 0), V(-43.9, -4.4, 0)), False)
sketch4.addGeometry(Part.LineSegment(V(-43.9, -4.4, 0), V(-44.6, -3.7, 0)), False)
sketch4.addGeometry(Part.LineSegment(V(-44.6, -3.7, 0), V(-47.6, -6.7, 0)), False)
sketch4.addGeometry(Part.ArcOfCircle(Part.Circle(V(-49.2, -5.1, 0), V(0, 0, 1), 2.2), math.radians(-135), math.radians(-45)), False)
sketch4.addGeometry(Part.LineSegment(V(-50.8, -6.7, 0), V(-57.6, 0.1, 0)), False)
sketch4.addGeometry(Part.ArcOfCircle(Part.Circle(V(-56, 1.7, 0), V(0, 0, 1), 2.2), math.radians(135), math.radians(225)), False)
sketch4.addGeometry(Part.LineSegment(V(-57.6, 3.3, 0), V(-54.3, 6.7, 0)), False)
sketch4.addGeometry(Part.LineSegment(V(-54.3, 6.7, 0), V(-59.7, 12.1, 0)), False)
sketch4.addConstraint(Sketcher.Constraint("Coincident", 0, 2, 1, 1))
sketch4.addConstraint(Sketcher.Constraint("Coincident", 1, 2, 2, 1))
sketch4.addConstraint(Sketcher.Constraint("Coincident", 2, 2, 3, 1))
sketch4.addConstraint(Sketcher.Constraint("Coincident", 3, 2, 4, 1))
sketch4.addConstraint(Sketcher.Constraint("Tangent", 4, 2, 5, 2))
sketch4.addConstraint(Sketcher.Constraint("Tangent", 5, 1, 6, 1))
sketch4.addConstraint(Sketcher.Constraint("Tangent", 6, 2, 7, 2))
sketch4.addConstraint(Sketcher.Constraint("Tangent", 7, 1, 8, 1))
sketch4.addConstraint(Sketcher.Constraint("Coincident", 8, 2, 9, 1))
sketch4.addConstraint(Sketcher.Constraint("Coincident", 9, 2, 0, 1))
sketch4.addConstraint(Sketcher.Constraint("Equal", 5, 7))
sketch4.addConstraint(Sketcher.Constraint("Perpendicular", 0, 1))
sketch4.addConstraint(Sketcher.Constraint("Perpendicular", 1, 2))
sketch4.addConstraint(Sketcher.Constraint("Perpendicular", 2, 3))
sketch4.addConstraint(Sketcher.Constraint("Perpendicular", 3, 4))
sketch4.addConstraint(Sketcher.Constraint("Perpendicular", 4, 6))
sketch4.addConstraint(Sketcher.Constraint("Perpendicular", 6, 8))
sketch4.addConstraint(Sketcher.Constraint("Perpendicular", 8, 9))
sketch4.addConstraint(Sketcher.Constraint("Horizontal", 4, 2, 5, 1))
sketch4.addConstraint(Sketcher.Constraint("Radius", 5, 2.25))
sketch4.addConstraint(Sketcher.Constraint("Distance", 2, 7.0))
sketch4.addConstraint(Sketcher.Constraint("Distance", 0, 6.5))
sketch4.addConstraint(Sketcher.Constraint("Distance", 1, 22.9))
sketch4.addConstraint(Sketcher.Constraint("Distance", 3, 1.1))
sketch4.addConstraint(Sketcher.Constraint("Distance", 6, 9.6))
sketch4.addConstraint(Sketcher.Constraint("Distance", 4, 4.25))
sketch4.addConstraint(Sketcher.Constraint("DistanceX", 4, 2, -1, 1, 47.6391))
sketch4.addConstraint(Sketcher.Constraint("DistanceY", -1, 1, 7, 3, 1.713768))
pocket2 = body.newObject("PartDesign::Pocket", "Pocket001")
pocket2.Profile = sketch4
pocket2.Length = 10
pocket2.Reversed = True

doc.recompute()
